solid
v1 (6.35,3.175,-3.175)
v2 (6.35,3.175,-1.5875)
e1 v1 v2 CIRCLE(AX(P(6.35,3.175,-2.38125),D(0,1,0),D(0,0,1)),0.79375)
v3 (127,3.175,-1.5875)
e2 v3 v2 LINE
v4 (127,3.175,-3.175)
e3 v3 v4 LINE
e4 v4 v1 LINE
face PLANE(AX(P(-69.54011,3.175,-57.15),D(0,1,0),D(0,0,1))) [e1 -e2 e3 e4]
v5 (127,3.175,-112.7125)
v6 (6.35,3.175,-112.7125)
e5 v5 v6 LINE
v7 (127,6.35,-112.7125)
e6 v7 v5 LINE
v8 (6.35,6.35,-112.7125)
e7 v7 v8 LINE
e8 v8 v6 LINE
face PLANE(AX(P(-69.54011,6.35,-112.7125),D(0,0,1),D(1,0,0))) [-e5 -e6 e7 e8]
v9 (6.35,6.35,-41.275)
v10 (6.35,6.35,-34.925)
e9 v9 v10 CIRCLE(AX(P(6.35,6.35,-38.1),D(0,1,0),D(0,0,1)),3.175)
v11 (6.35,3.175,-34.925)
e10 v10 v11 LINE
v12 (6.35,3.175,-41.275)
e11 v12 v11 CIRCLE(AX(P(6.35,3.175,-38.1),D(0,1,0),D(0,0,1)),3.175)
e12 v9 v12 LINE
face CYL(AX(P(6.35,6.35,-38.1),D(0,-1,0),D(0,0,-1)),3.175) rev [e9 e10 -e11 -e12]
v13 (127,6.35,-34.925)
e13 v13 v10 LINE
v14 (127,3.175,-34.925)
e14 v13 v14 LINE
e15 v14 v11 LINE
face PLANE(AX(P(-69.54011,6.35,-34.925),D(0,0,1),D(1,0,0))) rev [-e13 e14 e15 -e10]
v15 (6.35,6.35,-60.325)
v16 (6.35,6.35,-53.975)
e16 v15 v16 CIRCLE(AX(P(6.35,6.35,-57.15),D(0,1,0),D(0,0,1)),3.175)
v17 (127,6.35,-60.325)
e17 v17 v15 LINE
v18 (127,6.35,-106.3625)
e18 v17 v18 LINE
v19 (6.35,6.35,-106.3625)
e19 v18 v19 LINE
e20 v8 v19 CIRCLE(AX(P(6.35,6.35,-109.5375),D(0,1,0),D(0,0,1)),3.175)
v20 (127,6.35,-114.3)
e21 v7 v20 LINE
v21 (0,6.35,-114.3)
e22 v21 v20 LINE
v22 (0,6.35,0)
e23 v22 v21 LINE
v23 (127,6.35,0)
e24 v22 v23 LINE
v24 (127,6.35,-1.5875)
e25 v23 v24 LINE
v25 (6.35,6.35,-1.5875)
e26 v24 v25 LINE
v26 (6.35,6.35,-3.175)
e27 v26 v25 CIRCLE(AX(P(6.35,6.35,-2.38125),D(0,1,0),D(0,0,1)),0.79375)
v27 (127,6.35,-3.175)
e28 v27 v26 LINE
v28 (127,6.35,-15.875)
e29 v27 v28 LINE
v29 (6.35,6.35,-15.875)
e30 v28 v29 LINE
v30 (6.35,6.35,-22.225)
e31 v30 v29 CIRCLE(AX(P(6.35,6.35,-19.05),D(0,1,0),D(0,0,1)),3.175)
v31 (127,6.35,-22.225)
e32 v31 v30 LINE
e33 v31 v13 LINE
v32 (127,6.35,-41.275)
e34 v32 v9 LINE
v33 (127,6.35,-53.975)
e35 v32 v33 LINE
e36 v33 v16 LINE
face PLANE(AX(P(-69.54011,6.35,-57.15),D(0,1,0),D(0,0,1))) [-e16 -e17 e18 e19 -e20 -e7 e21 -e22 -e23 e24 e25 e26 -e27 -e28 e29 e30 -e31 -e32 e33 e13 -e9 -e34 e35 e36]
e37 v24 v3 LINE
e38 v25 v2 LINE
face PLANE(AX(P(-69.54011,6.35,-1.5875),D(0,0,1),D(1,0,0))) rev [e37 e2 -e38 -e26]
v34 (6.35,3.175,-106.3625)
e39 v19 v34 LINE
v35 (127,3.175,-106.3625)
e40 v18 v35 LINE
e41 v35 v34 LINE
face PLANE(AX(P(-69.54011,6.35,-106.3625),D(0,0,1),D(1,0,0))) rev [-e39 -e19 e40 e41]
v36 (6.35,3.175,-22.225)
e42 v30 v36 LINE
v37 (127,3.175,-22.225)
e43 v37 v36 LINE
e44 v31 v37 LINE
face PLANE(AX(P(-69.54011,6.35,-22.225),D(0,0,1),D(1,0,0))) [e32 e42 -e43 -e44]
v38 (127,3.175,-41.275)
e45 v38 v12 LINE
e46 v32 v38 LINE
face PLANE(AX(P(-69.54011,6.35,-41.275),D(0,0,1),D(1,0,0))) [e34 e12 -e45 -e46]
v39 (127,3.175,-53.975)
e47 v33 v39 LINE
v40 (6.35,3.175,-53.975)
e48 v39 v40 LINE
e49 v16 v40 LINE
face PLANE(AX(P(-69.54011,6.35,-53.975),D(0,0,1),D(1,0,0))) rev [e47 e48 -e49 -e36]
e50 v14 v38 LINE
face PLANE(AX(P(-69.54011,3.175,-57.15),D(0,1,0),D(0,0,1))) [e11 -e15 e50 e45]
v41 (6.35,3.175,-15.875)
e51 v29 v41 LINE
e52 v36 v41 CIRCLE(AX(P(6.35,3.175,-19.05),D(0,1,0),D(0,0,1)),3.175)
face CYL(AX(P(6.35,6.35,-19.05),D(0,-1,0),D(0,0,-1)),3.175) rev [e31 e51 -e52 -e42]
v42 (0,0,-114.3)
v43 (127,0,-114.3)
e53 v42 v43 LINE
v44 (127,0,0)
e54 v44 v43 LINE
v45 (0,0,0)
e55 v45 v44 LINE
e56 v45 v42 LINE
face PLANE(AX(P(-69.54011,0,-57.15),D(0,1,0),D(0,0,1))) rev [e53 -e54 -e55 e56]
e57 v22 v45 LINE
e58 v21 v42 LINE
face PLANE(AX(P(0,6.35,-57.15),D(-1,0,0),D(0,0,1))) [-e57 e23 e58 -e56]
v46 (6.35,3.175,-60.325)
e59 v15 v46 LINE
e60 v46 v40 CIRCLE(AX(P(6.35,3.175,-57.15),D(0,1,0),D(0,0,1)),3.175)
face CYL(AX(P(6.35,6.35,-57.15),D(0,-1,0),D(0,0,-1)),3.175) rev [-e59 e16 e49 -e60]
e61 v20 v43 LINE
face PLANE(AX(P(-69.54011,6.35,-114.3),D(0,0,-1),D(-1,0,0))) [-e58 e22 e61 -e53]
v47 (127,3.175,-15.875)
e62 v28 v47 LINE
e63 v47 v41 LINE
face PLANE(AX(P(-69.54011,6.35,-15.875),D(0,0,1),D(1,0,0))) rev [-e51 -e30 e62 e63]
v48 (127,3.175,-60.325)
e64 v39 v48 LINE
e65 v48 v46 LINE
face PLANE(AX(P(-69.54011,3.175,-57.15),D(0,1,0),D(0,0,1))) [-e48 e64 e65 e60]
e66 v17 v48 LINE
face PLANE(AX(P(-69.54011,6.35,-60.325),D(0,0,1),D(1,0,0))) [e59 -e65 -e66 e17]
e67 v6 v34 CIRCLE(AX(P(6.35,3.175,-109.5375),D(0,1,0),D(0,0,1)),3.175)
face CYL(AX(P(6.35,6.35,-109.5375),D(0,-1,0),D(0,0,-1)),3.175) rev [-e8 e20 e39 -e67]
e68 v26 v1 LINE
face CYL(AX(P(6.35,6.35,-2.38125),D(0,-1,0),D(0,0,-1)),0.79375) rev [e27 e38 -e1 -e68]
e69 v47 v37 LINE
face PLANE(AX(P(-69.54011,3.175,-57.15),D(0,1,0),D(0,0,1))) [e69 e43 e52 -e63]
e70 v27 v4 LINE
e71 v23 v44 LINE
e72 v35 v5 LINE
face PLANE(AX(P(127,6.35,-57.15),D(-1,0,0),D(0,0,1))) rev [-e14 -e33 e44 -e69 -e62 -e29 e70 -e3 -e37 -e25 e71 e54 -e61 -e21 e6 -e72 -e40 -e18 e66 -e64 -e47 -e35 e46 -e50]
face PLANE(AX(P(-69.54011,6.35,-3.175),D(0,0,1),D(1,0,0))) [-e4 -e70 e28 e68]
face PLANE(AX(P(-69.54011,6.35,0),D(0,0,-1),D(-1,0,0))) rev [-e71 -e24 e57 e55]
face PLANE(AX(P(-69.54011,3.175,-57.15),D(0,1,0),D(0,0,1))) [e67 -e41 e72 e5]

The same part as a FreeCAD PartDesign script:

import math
import FreeCAD as App
import Part
import Sketcher
Q = App.Units.Quantity

doc = App.newDocument("Part")
body = doc.addObject("PartDesign::Body", "Body")

# Sketch on XZ plane
sketch1 = body.newObject("Sketcher::SketchObject", "Sketch")
sketch1.AttachmentSupport = (doc.getObject("XZ_Plane"), [""])
sketch1.MapMode = "FlatFace"
sketch1.addGeometry([
    Part.LineSegment(App.Vector(0, -114.3, 0), App.Vector(0, 0, 0)),  # 0
    Part.LineSegment(App.Vector(0, 0, 0), App.Vector(127, 0, 0)),  # 1
    Part.LineSegment(App.Vector(127, 0, 0), App.Vector(127, -1.6, 0)),  # 2
    Part.LineSegment(App.Vector(127, -1.6, 0), App.Vector(6.3, -1.6, 0)),  # 3
    Part.ArcOfCircle(Part.Circle(App.Vector(6.3, -2.4, 0), App.Vector(0, 0, 1), 0.8), math.radians(90), math.radians(270)),  # 4
    Part.LineSegment(App.Vector(6.3, -3.2, 0), App.Vector(127, -3.2, 0)),  # 5
    Part.LineSegment(App.Vector(127, -3.2, 0), App.Vector(127, -15.9, 0)),  # 6
    Part.LineSegment(App.Vector(127, -15.9, 0), App.Vector(6.3, -15.9, 0)),  # 7
    Part.ArcOfCircle(Part.Circle(App.Vector(6.3, -19.1, 0), App.Vector(0, 0, 1), 3.2), math.radians(90), math.radians(270)),  # 8
    Part.LineSegment(App.Vector(6.3, -22.2, 0), App.Vector(127, -22.2, 0)),  # 9
    Part.LineSegment(App.Vector(127, -22.2, 0), App.Vector(127, -34.9, 0)),  # 10
    Part.LineSegment(App.Vector(127, -34.9, 0), App.Vector(6.3, -34.9, 0)),  # 11
    Part.ArcOfCircle(Part.Circle(App.Vector(6.3, -38.1, 0), App.Vector(0, 0, 1), 3.2), math.radians(90), math.radians(270)),  # 12
    Part.LineSegment(App.Vector(6.3, -41.3, 0), App.Vector(127, -41.3, 0)),  # 13
    Part.LineSegment(App.Vector(127, -41.3, 0), App.Vector(127, -54, 0)),  # 14
    Part.LineSegment(App.Vector(127, -54, 0), App.Vector(6.3, -54, 0)),  # 15
    Part.ArcOfCircle(Part.Circle(App.Vector(6.3, -57.1, 0), App.Vector(0, 0, 1), 3.2), math.radians(90), math.radians(270)),  # 16
    Part.LineSegment(App.Vector(6.3, -60.3, 0), App.Vector(127, -60.3, 0)),  # 17
    Part.LineSegment(App.Vector(127, -60.3, 0), App.Vector(127, -106.4, 0)),  # 18
    Part.LineSegment(App.Vector(127, -106.4, 0), App.Vector(6.3, -106.4, 0)),  # 19
    Part.ArcOfCircle(Part.Circle(App.Vector(6.3, -109.5, 0), App.Vector(0, 0, 1), 3.2), math.radians(90), math.radians(270)),  # 20
    Part.LineSegment(App.Vector(6.3, -112.7, 0), App.Vector(127, -112.7, 0)),  # 21
    Part.LineSegment(App.Vector(127, -112.7, 0), App.Vector(127, -114.3, 0)),  # 22
    Part.LineSegment(App.Vector(127, -114.3, 0), App.Vector(0, -114.3, 0)),  # 23
], False)
sketch1.addConstraint([
    Sketcher.Constraint("Coincident", 0, 2, 1, 1),
    Sketcher.Constraint("Coincident", 1, 2, 2, 1),
    Sketcher.Constraint("Coincident", 2, 2, 3, 1),
    Sketcher.Constraint("Tangent", 3, 2, 4, 1),
    Sketcher.Constraint("Tangent", 4, 2, 5, 1),
    Sketcher.Constraint("Coincident", 5, 2, 6, 1),
    Sketcher.Constraint("Coincident", 6, 2, 7, 1),
    Sketcher.Constraint("Tangent", 7, 2, 8, 1),
    Sketcher.Constraint("Tangent", 8, 2, 9, 1),
    Sketcher.Constraint("Coincident", 9, 2, 10, 1),
    Sketcher.Constraint("Coincident", 10, 2, 11, 1),
    Sketcher.Constraint("Tangent", 11, 2, 12, 1),
    Sketcher.Constraint("Tangent", 12, 2, 13, 1),
    Sketcher.Constraint("Coincident", 13, 2, 14, 1),
    Sketcher.Constraint("Coincident", 14, 2, 15, 1),
    Sketcher.Constraint("Tangent", 15, 2, 16, 1),
    Sketcher.Constraint("Tangent", 16, 2, 17, 1),
    Sketcher.Constraint("Coincident", 17, 2, 18, 1),
    Sketcher.Constraint("Coincident", 18, 2, 19, 1),
    Sketcher.Constraint("Tangent", 19, 2, 20, 1),
    Sketcher.Constraint("Tangent", 20, 2, 21, 1),
    Sketcher.Constraint("Coincident", 21, 2, 22, 1),
    Sketcher.Constraint("Coincident", 22, 2, 23, 1),
    Sketcher.Constraint("Coincident", 23, 2, 0, 1),
    Sketcher.Constraint("Vertical", 0),
    Sketcher.Constraint("Horizontal", 1),
    Sketcher.Constraint("Vertical", 2),
    Sketcher.Constraint("Horizontal", 3),
    Sketcher.Constraint("Horizontal", 5),
    Sketcher.Constraint("Vertical", 6),
    Sketcher.Constraint("Horizontal", 7),
    Sketcher.Constraint("Horizontal", 9),
    Sketcher.Constraint("Vertical", 10),
    Sketcher.Constraint("Horizontal", 11),
    Sketcher.Constraint("Horizontal", 13),
    Sketcher.Constraint("Vertical", 14),
    Sketcher.Constraint("Horizontal", 15),
    Sketcher.Constraint("Horizontal", 17),
    Sketcher.Constraint("Vertical", 18),
    Sketcher.Constraint("Horizontal", 19),
    Sketcher.Constraint("Horizontal", 21),
    Sketcher.Constraint("Vertical", 22),
    Sketcher.Constraint("Horizontal", 23),
    Sketcher.Constraint("Coincident", 0, 2, -1, 1),
    Sketcher.Constraint("Equal", 8, 12),
    Sketcher.Constraint("Equal", 12, 16),
    Sketcher.Constraint("Equal", 16, 20),
    Sketcher.Constraint("Vertical", 4, 3, 8, 3),
    Sketcher.Constraint("Vertical", 8, 3, 12, 3),
    Sketcher.Constraint("Vertical", 12, 3, 16, 3),
    Sketcher.Constraint("Vertical", 16, 3, 20, 3),
    Sketcher.Constraint("Vertical", 2, 2, 5, 2),
    Sketcher.Constraint("Vertical", 6, 2, 9, 2),
    Sketcher.Constraint("Vertical", 10, 2, 13, 2),
    Sketcher.Constraint("Vertical", 14, 2, 17, 2),
    Sketcher.Constraint("Vertical", 18, 2, 21, 2),
    Sketcher.Constraint("Equal", 6, 10),
    Sketcher.Constraint("Equal", 10, 14),
    Sketcher.Constraint("Equal", 2, 22),
    Sketcher.Constraint("DistanceX", 1, 1, 1, 2, Q("5 in")),
    Sketcher.Constraint("DistanceY", 0, 1, 0, 2, Q("4.5 in")),
    Sketcher.Constraint("DistanceY", 6, 2, 6, 1, Q("0.5 in")),
    Sketcher.Constraint("Radius", 4, Q("0.03125 in")),
    Sketcher.Constraint("Radius", 8, Q("0.125 in")),
    Sketcher.Constraint("DistanceX", 3, 2, 3, 1, Q("4.75 in")),
    Sketcher.Constraint("DistanceY", 12, 3, -1, 1, Q("1.5 in")),
])
pad1 = body.newObject("PartDesign::Pad", "Pad")
pad1.Profile = sketch1
pad1.Length = Q("0.25 in")
pad1.Reversed = True

# Sketch on XZ plane
sketch2 = body.newObject("Sketcher::SketchObject", "Sketch001")
sketch2.AttachmentSupport = (doc.getObject("XZ_Plane"), [""])
sketch2.MapMode = "FlatFace"
sketch2.addGeometry([
    Part.LineSegment(App.Vector(6.3, -1.6, 0), App.Vector(127, -1.6, 0)),  # 0
    Part.LineSegment(App.Vector(127, -1.6, 0), App.Vector(127, -3.2, 0)),  # 1
    Part.LineSegment(App.Vector(127, -3.2, 0), App.Vector(6.3, -3.2, 0)),  # 2
    Part.ArcOfCircle(Part.Circle(App.Vector(6.3, -2.4, 0), App.Vector(0, 0, 1), 0.8), math.radians(90), math.radians(270)),  # 3
    Part.LineSegment(App.Vector(6.3, -15.9, 0), App.Vector(127, -15.9, 0)),  # 4
    Part.LineSegment(App.Vector(127, -15.9, 0), App.Vector(127, -22.2, 0)),  # 5
    Part.LineSegment(App.Vector(127, -22.2, 0), App.Vector(6.3, -22.2, 0)),  # 6
    Part.ArcOfCircle(Part.Circle(App.Vector(6.3, -19.1, 0), App.Vector(0, 0, 1), 3.2), math.radians(90), math.radians(270)),  # 7
    Part.LineSegment(App.Vector(6.3, -34.9, 0), App.Vector(127, -34.9, 0)),  # 8
    Part.LineSegment(App.Vector(127, -34.9, 0), App.Vector(127, -41.3, 0)),  # 9
    Part.LineSegment(App.Vector(127, -41.3, 0), App.Vector(6.3, -41.3, 0)),  # 10
    Part.ArcOfCircle(Part.Circle(App.Vector(6.3, -38.1, 0), App.Vector(0, 0, 1), 3.2), math.radians(90), math.radians(270)),  # 11
    Part.LineSegment(App.Vector(6.3, -54, 0), App.Vector(127, -54, 0)),  # 12
    Part.LineSegment(App.Vector(127, -54, 0), App.Vector(127, -60.3, 0)),  # 13
    Part.LineSegment(App.Vector(127, -60.3, 0), App.Vector(6.3, -60.3, 0)),  # 14
    Part.ArcOfCircle(Part.Circle(App.Vector(6.3, -57.1, 0), App.Vector(0, 0, 1), 3.2), math.radians(90), math.radians(270)),  # 15
    Part.LineSegment(App.Vector(6.3, -106.4, 0), App.Vector(127, -106.4, 0)),  # 16
    Part.LineSegment(App.Vector(127, -106.4, 0), App.Vector(127, -112.7, 0)),  # 17
    Part.LineSegment(App.Vector(127, -112.7, 0), App.Vector(6.3, -112.7, 0)),  # 18
    Part.ArcOfCircle(Part.Circle(App.Vector(6.3, -109.5, 0), App.Vector(0, 0, 1), 3.2), math.radians(90), math.radians(270)),  # 19
], False)
sketch2.addConstraint([
    Sketcher.Constraint("Coincident", 0, 2, 1, 1),
    Sketcher.Constraint("Coincident", 1, 2, 2, 1),
    Sketcher.Constraint("Tangent", 2, 2, 3, 2),
    Sketcher.Constraint("Tangent", 3, 1, 0, 1),
    Sketcher.Constraint("Coincident", 4, 2, 5, 1),
    Sketcher.Constraint("Coincident", 5, 2, 6, 1),
    Sketcher.Constraint("Tangent", 6, 2, 7, 2),
    Sketcher.Constraint("Tangent", 7, 1, 4, 1),
    Sketcher.Constraint("Coincident", 8, 2, 9, 1),
    Sketcher.Constraint("Coincident", 9, 2, 10, 1),
    Sketcher.Constraint("Tangent", 10, 2, 11, 2),
    Sketcher.Constraint("Tangent", 11, 1, 8, 1),
    Sketcher.Constraint("Coincident", 12, 2, 13, 1),
    Sketcher.Constraint("Coincident", 13, 2, 14, 1),
    Sketcher.Constraint("Tangent", 14, 2, 15, 2),
    Sketcher.Constraint("Tangent", 15, 1, 12, 1),
    Sketcher.Constraint("Coincident", 16, 2, 17, 1),
    Sketcher.Constraint("Coincident", 17, 2, 18, 1),
    Sketcher.Constraint("Tangent", 18, 2, 19, 2),
    Sketcher.Constraint("Tangent", 19, 1, 16, 1),
    Sketcher.Constraint("Horizontal", 0),
    Sketcher.Constraint("Vertical", 1),
    Sketcher.Constraint("Horizontal", 2),
    Sketcher.Constraint("Horizontal", 4),
    Sketcher.Constraint("Vertical", 5),
    Sketcher.Constraint("Horizontal", 6),
    Sketcher.Constraint("Horizontal", 8),
    Sketcher.Constraint("Vertical", 9),
    Sketcher.Constraint("Horizontal", 10),
    Sketcher.Constraint("Horizontal", 12),
    Sketcher.Constraint("Vertical", 13),
    Sketcher.Constraint("Horizontal", 14),
    Sketcher.Constraint("Horizontal", 16),
    Sketcher.Constraint("Vertical", 17),
    Sketcher.Constraint("Horizontal", 18),
    Sketcher.Constraint("Equal", 7, 11),
    Sketcher.Constraint("Equal", 11, 15),
    Sketcher.Constraint("Equal", 15, 19),
    Sketcher.Constraint("Vertical", 3, 3, 7, 3),
    Sketcher.Constraint("Vertical", 7, 3, 11, 3),
    Sketcher.Constraint("Vertical", 11, 3, 15, 3),
    Sketcher.Constraint("Vertical", 15, 3, 19, 3),
    Sketcher.Constraint("Vertical", 1, 2, 4, 2),
    Sketcher.Constraint("Vertical", 5, 2, 8, 2),
    Sketcher.Constraint("Vertical", 9, 2, 12, 2),
    Sketcher.Constraint("Vertical", 13, 2, 16, 2),
    Sketcher.Constraint("DistanceX", -1, 1, 0, 2, Q("5 in")),
    Sketcher.Constraint("Radius", 3, Q("0.03125 in")),
    Sketcher.Constraint("Radius", 7, Q("0.125 in")),
    Sketcher.Constraint("DistanceY", 9, 2, 4, 2, Q("1 in")),
    Sketcher.Constraint("DistanceY", 12, 2, 1, 2, Q("2 in")),
    Sketcher.Constraint("DistanceY", 13, 2, 8, 2, Q("1 in")),
    Sketcher.Constraint("DistanceX", 0, 1, 0, 2, Q("4.75 in")),
    Sketcher.Constraint("DistanceY", 11, 3, -1, 1, Q("1.5 in")),
    Sketcher.Constraint("DistanceY", 19, 3, 0, 2, Q("4.25 in")),
])
pad2 = body.newObject("PartDesign::Pad", "Pad001")
pad2.Profile = sketch2
pad2.Length = Q("0.125 in")
pad2.Reversed = True

doc.recompute()
